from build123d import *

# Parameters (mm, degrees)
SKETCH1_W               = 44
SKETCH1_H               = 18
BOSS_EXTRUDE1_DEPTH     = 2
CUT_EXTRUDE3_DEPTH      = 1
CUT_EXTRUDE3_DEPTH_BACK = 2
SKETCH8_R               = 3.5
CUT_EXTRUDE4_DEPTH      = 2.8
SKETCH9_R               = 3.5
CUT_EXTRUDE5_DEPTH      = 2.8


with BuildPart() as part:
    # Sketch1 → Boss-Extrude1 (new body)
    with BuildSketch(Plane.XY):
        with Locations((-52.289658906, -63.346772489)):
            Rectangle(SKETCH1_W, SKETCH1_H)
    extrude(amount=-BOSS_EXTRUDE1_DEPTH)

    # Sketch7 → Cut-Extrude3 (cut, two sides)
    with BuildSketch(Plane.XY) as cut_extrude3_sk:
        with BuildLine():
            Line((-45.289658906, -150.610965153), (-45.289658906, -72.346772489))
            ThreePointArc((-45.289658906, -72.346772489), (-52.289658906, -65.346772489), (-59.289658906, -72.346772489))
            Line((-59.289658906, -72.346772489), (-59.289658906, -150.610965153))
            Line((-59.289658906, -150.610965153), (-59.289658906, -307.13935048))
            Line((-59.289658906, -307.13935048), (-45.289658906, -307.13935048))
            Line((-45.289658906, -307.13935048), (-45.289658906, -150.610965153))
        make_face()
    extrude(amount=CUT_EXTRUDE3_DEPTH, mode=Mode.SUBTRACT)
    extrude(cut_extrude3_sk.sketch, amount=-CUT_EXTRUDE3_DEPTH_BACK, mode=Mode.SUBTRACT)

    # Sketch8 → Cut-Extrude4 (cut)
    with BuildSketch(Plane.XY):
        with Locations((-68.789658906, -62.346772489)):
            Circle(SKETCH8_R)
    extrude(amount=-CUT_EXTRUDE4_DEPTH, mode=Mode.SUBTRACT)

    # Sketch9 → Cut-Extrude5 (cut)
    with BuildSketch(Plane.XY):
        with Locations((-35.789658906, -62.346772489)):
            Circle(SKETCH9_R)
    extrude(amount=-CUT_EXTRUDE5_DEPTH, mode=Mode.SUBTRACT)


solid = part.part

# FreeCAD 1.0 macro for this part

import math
import FreeCAD as App
import Part
import Sketcher
from FreeCAD import Vector
Q = App.Units.Quantity

doc = App.newDocument("Part")
params = doc.addObject("Spreadsheet::Sheet", "Params")
for row, (alias, value) in enumerate([
    ("sketch1_width", "44 mm"),
    ("sketch1_height", "18 mm"),
    ("pad1_length", "2 mm"),
    ("sketch2_radius", "7 mm"),
    ("sketch3_diameter", "7 mm"),
    ("pocket2_length", "2.8 mm"),
    ("sketch4_diameter", "7 mm"),
    ("pocket3_length", "2.8 mm"),
], start=1):
    params.set(f"A{row}", alias)
    params.set(f"B{row}", "=" + value)
    params.setAlias(f"B{row}", alias)

body = doc.addObject("PartDesign::Body", "Body")

# Sketch on XY plane
sketch1 = body.newObject("Sketcher::SketchObject", "Sketch")
sketch1.AttachmentSupport = (doc.getObject("XY_Plane"), [""])
sketch1.MapMode = "FlatFace"
sketch1.addGeometry(Part.LineSegment(Vector(-74, -54, 0), Vector(-74, -72, 0)), False)
sketch1.addGeometry(Part.LineSegment(Vector(-74, -72, 0), Vector(-30, -72, 0)), False)
sketch1.addGeometry(Part.LineSegment(Vector(-30, -72, 0), Vector(-30, -54, 0)), False)
sketch1.addGeometry(Part.LineSegment(Vector(-30, -54, 0), Vector(-74, -54, 0)), False)
sketch1.addConstraint(Sketcher.Constraint("Coincident", 0, 2, 1, 1))
sketch1.addConstraint(Sketcher.Constraint("Coincident", 1, 2, 2, 1))
sketch1.addConstraint(Sketcher.Constraint("Coincident", 2, 2, 3, 1))
sketch1.addConstraint(Sketcher.Constraint("Coincident", 3, 2, 0, 1))
sketch1.addConstraint(Sketcher.Constraint("Vertical", 0))
sketch1.addConstraint(Sketcher.Constraint("Horizontal", 1))
sketch1.addConstraint(Sketcher.Constraint("Vertical", 2))
sketch1.addConstraint(Sketcher.Constraint("Horizontal", 3))
sketch1.addConstraint(Sketcher.Constraint("DistanceX", 1, 1, 1, 2, Q("44 mm")))
sketch1.addConstraint(Sketcher.Constraint("DistanceY", 0, 2, 0, 1, Q("18 mm")))
sketch1.addConstraint(Sketcher.Constraint("DistanceX", 0, 2, -1, 1, Q("74.289659 mm")))
sketch1.addConstraint(Sketcher.Constraint("DistanceY", 0, 2, -1, 1, Q("72.346772 mm")))
sketch1.setExpression("Constraints[8]", "Params.sketch1_width")
sketch1.setExpression("Constraints[9]", "Params.sketch1_height")
pad1 = body.newObject("PartDesign::Pad", "Pad")
pad1.Profile = sketch1
pad1.setExpression("Length", "Params.pad1_length")
pad1.Reversed = True

# Sketch on XY plane
sketch2 = body.newObject("Sketcher::SketchObject", "Sketch001")
sketch2.AttachmentSupport = (doc.getObject("XY_Plane"), [""])
sketch2.MapMode = "FlatFace"
sketch2.addGeometry(Part.ArcOfCircle(Part.Circle(Vector(-52, -72, 0), Vector(0, 0, 1), 7), math.radians(0), math.radians(180)), False)
sketch2.addGeometry(Part.LineSegment(Vector(-59, -72, 0), Vector(-59, -307, 0)), False)
sketch2.addGeometry(Part.LineSegment(Vector(-59, -307, 0), Vector(-45, -307, 0)), False)
sketch2.addGeometry(Part.LineSegment(Vector(-45, -307, 0), Vector(-45, -72, 0)), False)
sketch2.addConstraint(Sketcher.Constraint("Tangent", 0, 2, 1, 1))
sketch2.addConstraint(Sketcher.Constraint("Coincident", 1, 2, 2, 1))
sketch2.addConstraint(Sketcher.Constraint("Coincident", 2, 2, 3, 1))
sketch2.addConstraint(Sketcher.Constraint("Tangent", 3, 2, 0, 1))
sketch2.addConstraint(Sketcher.Constraint("Vertical", 1))
sketch2.addConstraint(Sketcher.Constraint("Horizontal", 2))
sketch2.addConstraint(Sketcher.Constraint("Vertical", 3))
sketch2.addConstraint(Sketcher.Constraint("Radius", 0, Q("7 mm")))
sketch2.addConstraint(Sketcher.Constraint("DistanceY", 1, 2, 1, 1, Q("234.792578 mm")))
sketch2.addConstraint(Sketcher.Constraint("DistanceX", 0, 3, -1, 1, Q("52.289659 mm")))
sketch2.addConstraint(Sketcher.Constraint("DistanceY", 1, 2, -1, 1, Q("307.13935 mm")))
sketch2.setExpression("Constraints[7]", "Params.sketch2_radius")
pocket1 = body.newObject("PartDesign::Pocket", "Pocket")
pocket1.Profile = sketch2
pocket1.Type = "ThroughAll"
pocket1.Midplane = True

# Sketch on XY plane
sketch3 = body.newObject("Sketcher::SketchObject", "Sketch002")
sketch3.AttachmentSupport = (doc.getObject("XY_Plane"), [""])
sketch3.MapMode = "FlatFace"
sketch3.addGeometry(Part.Circle(Vector(-68.8, -62.3, 0), Vector(0, 0, 1), 3.5), False)
sketch3.addConstraint(Sketcher.Constraint("Diameter", 0, Q("7 mm")))
sketch3.addConstraint(Sketcher.Constraint("DistanceX", 0, 3, -1, 1, Q("68.789659 mm")))
sketch3.addConstraint(Sketcher.Constraint("DistanceY", 0, 3, -1, 1, Q("62.346772 mm")))
sketch3.setExpression("Constraints[0]", "Params.sketch3_diameter")
pocket2 = body.newObject("PartDesign::Pocket", "Pocket001")
pocket2.Profile = sketch3
pocket2.setExpression("Length", "Params.pocket2_length")

# Sketch on XY plane
sketch4 = body.newObject("Sketcher::SketchObject", "Sketch003")
sketch4.AttachmentSupport = (doc.getObject("XY_Plane"), [""])
sketch4.MapMode = "FlatFace"
sketch4.addGeometry(Part.Circle(Vector(-35.8, -62.3, 0), Vector(0, 0, 1), 3.5), False)
sketch4.addConstraint(Sketcher.Constraint("Diameter", 0, Q("7 mm")))
sketch4.addConstraint(Sketcher.Constraint("DistanceX", 0, 3, -1, 1, Q("35.789659 mm")))
sketch4.addConstraint(Sketcher.Constraint("DistanceY", 0, 3, -1, 1, Q("62.346772 mm")))
sketch4.setExpression("Constraints[0]", "Params.sketch4_diameter")
pocket3 = body.newObject("PartDesign::Pocket", "Pocket002")
pocket3.Profile = sketch4
pocket3.setExpression("Length", "Params.pocket3_length")

doc.recompute()
